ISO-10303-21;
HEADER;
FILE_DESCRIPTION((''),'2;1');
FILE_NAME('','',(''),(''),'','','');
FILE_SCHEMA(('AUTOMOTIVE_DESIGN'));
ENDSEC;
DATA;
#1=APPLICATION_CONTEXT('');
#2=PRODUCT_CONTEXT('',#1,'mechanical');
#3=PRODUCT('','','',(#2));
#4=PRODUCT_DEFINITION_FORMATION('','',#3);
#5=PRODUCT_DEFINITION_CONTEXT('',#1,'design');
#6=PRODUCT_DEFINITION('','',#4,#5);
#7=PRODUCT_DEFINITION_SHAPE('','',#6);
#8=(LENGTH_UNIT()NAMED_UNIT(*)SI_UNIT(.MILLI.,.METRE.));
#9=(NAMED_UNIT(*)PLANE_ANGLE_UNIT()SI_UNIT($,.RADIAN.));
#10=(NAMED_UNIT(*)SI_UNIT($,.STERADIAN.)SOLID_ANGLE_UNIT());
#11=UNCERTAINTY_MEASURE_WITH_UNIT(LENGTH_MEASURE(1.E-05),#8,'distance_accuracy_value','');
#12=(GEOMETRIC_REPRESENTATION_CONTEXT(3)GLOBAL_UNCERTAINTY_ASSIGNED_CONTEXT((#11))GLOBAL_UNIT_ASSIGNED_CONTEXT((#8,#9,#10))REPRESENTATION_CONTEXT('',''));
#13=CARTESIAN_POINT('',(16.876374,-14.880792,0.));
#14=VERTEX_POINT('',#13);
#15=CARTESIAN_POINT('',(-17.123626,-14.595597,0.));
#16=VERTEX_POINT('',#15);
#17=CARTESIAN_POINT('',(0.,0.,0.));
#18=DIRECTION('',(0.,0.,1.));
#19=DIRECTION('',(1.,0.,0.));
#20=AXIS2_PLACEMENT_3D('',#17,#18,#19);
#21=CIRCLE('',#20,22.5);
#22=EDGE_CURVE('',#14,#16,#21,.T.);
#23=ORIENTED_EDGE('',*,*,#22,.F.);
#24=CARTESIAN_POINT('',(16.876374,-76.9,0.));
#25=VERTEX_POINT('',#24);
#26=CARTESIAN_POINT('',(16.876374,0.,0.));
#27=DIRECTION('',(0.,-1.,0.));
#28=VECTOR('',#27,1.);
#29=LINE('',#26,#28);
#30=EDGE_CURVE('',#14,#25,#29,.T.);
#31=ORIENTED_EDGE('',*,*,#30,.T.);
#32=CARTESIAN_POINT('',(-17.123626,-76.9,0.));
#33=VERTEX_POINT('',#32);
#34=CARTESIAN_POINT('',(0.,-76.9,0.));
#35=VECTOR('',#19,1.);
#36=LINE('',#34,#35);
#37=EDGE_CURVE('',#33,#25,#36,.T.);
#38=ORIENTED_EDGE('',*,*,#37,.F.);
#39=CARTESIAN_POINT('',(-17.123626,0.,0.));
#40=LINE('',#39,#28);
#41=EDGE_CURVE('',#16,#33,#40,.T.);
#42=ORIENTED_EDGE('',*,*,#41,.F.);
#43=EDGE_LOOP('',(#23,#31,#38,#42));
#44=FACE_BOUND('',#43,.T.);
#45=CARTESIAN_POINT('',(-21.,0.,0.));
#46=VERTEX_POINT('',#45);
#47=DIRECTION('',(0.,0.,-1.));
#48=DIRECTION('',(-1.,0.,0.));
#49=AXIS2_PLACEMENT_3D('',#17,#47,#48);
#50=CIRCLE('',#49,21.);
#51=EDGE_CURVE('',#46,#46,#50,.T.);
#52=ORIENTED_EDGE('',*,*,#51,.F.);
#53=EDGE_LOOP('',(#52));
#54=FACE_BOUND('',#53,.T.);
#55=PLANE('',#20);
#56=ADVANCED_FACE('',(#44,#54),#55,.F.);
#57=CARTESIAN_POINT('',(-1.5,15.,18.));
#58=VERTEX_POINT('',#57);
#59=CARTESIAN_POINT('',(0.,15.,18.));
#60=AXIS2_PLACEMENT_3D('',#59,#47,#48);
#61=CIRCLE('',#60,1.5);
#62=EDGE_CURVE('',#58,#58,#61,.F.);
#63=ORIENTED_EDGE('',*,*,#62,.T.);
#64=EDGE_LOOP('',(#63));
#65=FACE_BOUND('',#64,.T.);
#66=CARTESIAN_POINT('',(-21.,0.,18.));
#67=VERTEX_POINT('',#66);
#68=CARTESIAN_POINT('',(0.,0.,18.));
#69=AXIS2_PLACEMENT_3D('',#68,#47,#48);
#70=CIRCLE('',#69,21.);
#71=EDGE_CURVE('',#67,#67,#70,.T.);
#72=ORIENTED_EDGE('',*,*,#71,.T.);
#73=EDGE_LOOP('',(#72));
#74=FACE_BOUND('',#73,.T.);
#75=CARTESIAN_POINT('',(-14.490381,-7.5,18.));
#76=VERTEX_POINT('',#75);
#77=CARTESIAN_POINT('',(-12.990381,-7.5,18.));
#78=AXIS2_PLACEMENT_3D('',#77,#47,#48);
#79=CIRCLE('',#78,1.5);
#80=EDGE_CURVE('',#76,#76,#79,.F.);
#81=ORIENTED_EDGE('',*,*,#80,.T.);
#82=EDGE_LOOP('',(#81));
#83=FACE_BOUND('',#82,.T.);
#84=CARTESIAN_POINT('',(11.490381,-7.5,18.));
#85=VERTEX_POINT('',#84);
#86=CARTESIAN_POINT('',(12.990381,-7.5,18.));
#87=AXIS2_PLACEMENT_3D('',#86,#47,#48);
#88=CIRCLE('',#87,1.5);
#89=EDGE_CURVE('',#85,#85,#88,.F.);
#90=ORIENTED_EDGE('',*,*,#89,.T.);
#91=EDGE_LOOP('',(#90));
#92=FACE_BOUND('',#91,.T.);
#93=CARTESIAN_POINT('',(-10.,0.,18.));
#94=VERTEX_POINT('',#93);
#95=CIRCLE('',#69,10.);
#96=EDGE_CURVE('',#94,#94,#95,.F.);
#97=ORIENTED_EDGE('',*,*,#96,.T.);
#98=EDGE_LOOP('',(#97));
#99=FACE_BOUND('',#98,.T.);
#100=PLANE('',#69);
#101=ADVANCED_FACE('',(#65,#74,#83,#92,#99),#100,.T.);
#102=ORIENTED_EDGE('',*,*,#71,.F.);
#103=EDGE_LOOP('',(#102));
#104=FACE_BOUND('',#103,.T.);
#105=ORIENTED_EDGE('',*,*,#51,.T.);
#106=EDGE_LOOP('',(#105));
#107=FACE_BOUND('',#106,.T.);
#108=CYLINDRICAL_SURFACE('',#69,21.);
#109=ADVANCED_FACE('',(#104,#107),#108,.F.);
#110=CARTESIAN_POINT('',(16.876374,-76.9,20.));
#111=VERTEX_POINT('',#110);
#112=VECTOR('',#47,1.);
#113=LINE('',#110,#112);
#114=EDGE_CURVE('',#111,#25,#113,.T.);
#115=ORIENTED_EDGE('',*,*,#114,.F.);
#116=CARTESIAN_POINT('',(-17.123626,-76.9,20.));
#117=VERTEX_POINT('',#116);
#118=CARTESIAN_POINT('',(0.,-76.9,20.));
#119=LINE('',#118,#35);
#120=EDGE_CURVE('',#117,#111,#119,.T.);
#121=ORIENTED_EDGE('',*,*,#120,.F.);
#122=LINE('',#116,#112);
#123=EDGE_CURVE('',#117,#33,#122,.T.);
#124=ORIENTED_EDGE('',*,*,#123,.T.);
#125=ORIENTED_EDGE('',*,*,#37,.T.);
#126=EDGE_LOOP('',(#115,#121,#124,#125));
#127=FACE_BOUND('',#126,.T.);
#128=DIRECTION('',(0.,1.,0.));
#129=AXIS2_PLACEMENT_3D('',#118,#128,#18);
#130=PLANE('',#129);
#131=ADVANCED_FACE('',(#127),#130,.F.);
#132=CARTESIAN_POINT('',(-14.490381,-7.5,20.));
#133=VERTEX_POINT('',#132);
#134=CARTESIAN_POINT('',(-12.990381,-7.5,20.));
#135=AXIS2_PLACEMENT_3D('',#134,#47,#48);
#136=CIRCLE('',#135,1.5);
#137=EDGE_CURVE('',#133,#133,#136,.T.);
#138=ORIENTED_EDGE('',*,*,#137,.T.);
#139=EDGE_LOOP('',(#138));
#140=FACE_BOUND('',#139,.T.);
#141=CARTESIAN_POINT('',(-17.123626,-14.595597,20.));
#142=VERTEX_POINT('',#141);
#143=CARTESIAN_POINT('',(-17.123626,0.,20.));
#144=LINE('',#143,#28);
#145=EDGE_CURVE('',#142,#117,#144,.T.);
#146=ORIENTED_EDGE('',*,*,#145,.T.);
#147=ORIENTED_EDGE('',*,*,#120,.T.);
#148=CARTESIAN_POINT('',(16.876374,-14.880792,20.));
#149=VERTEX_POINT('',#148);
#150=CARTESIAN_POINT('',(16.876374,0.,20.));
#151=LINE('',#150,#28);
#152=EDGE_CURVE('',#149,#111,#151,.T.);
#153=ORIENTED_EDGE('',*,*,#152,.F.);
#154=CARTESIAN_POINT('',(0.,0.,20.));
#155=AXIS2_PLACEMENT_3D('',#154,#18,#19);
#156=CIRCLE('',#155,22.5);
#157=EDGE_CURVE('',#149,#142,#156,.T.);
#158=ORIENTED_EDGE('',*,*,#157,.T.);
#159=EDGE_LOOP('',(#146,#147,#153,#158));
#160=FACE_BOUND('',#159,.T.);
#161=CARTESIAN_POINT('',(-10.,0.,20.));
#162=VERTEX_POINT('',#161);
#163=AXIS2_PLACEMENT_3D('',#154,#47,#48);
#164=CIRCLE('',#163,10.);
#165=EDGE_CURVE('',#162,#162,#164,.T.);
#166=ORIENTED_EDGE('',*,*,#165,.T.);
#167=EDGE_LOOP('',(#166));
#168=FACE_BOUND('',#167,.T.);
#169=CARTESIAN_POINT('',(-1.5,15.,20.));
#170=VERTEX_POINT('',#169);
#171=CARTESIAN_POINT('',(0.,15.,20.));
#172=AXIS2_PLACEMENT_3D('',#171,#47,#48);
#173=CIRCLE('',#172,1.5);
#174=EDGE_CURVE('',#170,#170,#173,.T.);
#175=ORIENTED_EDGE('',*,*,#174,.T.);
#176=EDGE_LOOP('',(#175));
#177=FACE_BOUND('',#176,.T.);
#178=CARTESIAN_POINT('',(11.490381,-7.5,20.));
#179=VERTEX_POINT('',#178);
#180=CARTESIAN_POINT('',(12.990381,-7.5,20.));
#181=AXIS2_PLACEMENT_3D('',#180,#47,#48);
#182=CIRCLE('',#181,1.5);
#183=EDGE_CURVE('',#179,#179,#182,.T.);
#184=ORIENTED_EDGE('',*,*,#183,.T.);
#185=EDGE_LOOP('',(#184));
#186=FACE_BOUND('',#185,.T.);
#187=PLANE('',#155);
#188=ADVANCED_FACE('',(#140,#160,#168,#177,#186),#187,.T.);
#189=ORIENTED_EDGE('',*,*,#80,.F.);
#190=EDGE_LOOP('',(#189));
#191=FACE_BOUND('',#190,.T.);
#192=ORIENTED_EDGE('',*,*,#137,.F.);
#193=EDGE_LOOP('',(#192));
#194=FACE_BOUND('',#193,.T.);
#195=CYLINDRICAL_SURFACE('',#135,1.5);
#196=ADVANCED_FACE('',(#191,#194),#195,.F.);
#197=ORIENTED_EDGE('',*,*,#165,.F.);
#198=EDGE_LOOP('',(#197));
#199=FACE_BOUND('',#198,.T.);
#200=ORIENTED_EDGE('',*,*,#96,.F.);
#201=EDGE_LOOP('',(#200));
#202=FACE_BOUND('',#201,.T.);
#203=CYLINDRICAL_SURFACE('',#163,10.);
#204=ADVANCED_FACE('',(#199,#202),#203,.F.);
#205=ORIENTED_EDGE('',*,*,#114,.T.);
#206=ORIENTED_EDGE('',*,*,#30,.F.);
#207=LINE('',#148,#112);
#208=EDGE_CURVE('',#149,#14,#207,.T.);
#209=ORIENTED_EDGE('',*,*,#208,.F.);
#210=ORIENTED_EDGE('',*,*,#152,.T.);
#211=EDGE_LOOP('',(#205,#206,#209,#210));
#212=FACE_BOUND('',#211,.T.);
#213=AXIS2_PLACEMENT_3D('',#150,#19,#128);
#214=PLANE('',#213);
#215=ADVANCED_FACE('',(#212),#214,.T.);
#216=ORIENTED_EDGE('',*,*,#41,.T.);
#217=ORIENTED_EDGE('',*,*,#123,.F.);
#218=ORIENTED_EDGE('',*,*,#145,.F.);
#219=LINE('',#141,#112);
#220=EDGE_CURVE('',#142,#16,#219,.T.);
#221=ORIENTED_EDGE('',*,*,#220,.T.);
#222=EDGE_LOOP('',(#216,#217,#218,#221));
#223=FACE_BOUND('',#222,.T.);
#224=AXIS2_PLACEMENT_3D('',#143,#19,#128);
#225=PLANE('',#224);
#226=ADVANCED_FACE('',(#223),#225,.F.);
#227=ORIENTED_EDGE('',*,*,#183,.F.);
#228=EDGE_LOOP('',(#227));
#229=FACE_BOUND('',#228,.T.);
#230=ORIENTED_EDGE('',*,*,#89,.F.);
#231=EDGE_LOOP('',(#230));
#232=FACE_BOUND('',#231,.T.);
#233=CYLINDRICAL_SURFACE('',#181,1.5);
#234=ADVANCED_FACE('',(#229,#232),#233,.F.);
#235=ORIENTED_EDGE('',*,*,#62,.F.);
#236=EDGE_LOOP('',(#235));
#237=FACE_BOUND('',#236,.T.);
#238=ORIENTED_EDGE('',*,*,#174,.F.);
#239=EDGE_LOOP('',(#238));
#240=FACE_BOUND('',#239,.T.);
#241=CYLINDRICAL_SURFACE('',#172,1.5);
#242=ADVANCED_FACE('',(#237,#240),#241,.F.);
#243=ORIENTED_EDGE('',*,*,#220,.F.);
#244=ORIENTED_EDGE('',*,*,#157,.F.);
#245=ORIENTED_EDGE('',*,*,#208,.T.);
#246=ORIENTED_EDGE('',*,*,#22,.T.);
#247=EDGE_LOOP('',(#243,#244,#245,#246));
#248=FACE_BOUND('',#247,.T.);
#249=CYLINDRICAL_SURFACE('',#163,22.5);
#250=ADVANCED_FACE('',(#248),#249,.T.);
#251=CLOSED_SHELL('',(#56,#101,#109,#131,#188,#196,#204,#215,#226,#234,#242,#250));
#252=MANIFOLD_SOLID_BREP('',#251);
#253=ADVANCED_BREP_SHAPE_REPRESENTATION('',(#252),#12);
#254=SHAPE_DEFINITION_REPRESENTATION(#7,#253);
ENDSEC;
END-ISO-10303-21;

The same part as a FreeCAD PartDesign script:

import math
import FreeCAD as App
import Part
import Sketcher

V = App.Vector
Q = App.Units.Quantity

doc = App.newDocument("Part")
body = doc.addObject("PartDesign::Body", "Body")

# Sketch on XY plane
sketch1 = body.newObject("Sketcher::SketchObject", "Sketch")
sketch1.AttachmentSupport = (doc.getObject("XY_Plane"), [""])
sketch1.MapMode = "FlatFace"
sketch1.addGeometry([
    Part.LineSegment(V(-17, -15, 0), V(-17, -77, 0)),
    Part.LineSegment(V(-17, -77, 0), V(17, -77, 0)),
    Part.LineSegment(V(17, -77, 0), V(17, -15, 0)),
    Part.ArcOfCircle(Part.Circle(V(0, 0, 0), V(0, 0, 1), 22), math.radians(-41), math.radians(220)),
], False)
sketch1.addConstraint([
    Sketcher.Constraint("Coincident", 0, 2, 1, 1),
    Sketcher.Constraint("Coincident", 1, 2, 2, 1),
    Sketcher.Constraint("Coincident", 2, 2, 3, 1),
    Sketcher.Constraint("Coincident", 3, 2, 0, 1),
    Sketcher.Constraint("Vertical", 0),
    Sketcher.Constraint("Horizontal", 1),
    Sketcher.Constraint("Vertical", 2),
    Sketcher.Constraint("Coincident", 3, 3, -1, 1),
    Sketcher.Constraint("Radius", 3, Q("22.5 mm")),
    Sketcher.Constraint("DistanceX", 1, 1, 1, 2, Q("34 mm")),
    Sketcher.Constraint("DistanceY", 0, 2, -1, 1, Q("76.9 mm")),
    Sketcher.Constraint("DistanceY", 0, 2, 0, 1, Q("62.304403 mm")),
])
pad1 = body.newObject("PartDesign::Pad", "Pad")
pad1.Profile = sketch1
pad1.Length = 20

# Sketch on XY plane
sketch2 = body.newObject("Sketcher::SketchObject", "Sketch001")
sketch2.AttachmentSupport = (doc.getObject("XY_Plane"), [""])
sketch2.MapMode = "FlatFace"
sketch2.addGeometry(Part.Circle(V(0, 0, 0), V(0, 0, 1), 10), False)
sketch2.addConstraint([
    Sketcher.Constraint("Coincident", 0, 3, -1, 1),
    Sketcher.Constraint("Diameter", 0, Q("20 mm")),
])
pocket1 = body.newObject("PartDesign::Pocket", "Pocket")
pocket1.Profile = sketch2
pocket1.Length = 20
pocket1.Reversed = True

# Sketch on XY plane
sketch3 = body.newObject("Sketcher::SketchObject", "Sketch002")
sketch3.AttachmentSupport = (doc.getObject("XY_Plane"), [""])
sketch3.MapMode = "FlatFace"
sketch3.addGeometry([
    Part.Circle(V(0, 15, 0), V(0, 0, 1), 1.5),
    Part.Circle(V(-13, -7.5, 0), V(0, 0, 1), 1.5),
    Part.Circle(V(13, -7.5, 0), V(0, 0, 1), 1.5),
], False)
sketch3.addConstraint([
    Sketcher.Constraint("Equal", 0, 1),
    Sketcher.Constraint("Equal", 1, 2),
    Sketcher.Constraint("Symmetric", 1, 3, 2, 3, -2),
    Sketcher.Constraint("PointOnObject", 0, 3, -2),
    Sketcher.Constraint("Diameter", 0, Q("3 mm")),
    Sketcher.Constraint("DistanceY", -1, 1, 0, 3, Q("15 mm")),
    Sketcher.Constraint("DistanceY", 1, 3, -1, 1, Q("7.5 mm")),
    Sketcher.Constraint("DistanceX", 1, 3, -1, 1, Q("12.990381 mm")),
])
pocket2 = body.newObject("PartDesign::Pocket", "Pocket001")
pocket2.Profile = sketch3
pocket2.Length = 20
pocket2.Reversed = True

# Sketch on XY plane
sketch4 = body.newObject("Sketcher::SketchObject", "Sketch003")
sketch4.AttachmentSupport = (doc.getObject("XY_Plane"), [""])
sketch4.MapMode = "FlatFace"
sketch4.addGeometry(Part.Circle(V(0, 0, 0), V(0, 0, 1), 21), False)
sketch4.addConstraint([
    Sketcher.Constraint("Coincident", 0, 3, -1, 1),
    Sketcher.Constraint("Diameter", 0, Q("42 mm")),
])
pocket3 = body.newObject("PartDesign::Pocket", "Pocket002")
pocket3.Profile = sketch4
pocket3.Length = 18
pocket3.Reversed = True

doc.recompute()
